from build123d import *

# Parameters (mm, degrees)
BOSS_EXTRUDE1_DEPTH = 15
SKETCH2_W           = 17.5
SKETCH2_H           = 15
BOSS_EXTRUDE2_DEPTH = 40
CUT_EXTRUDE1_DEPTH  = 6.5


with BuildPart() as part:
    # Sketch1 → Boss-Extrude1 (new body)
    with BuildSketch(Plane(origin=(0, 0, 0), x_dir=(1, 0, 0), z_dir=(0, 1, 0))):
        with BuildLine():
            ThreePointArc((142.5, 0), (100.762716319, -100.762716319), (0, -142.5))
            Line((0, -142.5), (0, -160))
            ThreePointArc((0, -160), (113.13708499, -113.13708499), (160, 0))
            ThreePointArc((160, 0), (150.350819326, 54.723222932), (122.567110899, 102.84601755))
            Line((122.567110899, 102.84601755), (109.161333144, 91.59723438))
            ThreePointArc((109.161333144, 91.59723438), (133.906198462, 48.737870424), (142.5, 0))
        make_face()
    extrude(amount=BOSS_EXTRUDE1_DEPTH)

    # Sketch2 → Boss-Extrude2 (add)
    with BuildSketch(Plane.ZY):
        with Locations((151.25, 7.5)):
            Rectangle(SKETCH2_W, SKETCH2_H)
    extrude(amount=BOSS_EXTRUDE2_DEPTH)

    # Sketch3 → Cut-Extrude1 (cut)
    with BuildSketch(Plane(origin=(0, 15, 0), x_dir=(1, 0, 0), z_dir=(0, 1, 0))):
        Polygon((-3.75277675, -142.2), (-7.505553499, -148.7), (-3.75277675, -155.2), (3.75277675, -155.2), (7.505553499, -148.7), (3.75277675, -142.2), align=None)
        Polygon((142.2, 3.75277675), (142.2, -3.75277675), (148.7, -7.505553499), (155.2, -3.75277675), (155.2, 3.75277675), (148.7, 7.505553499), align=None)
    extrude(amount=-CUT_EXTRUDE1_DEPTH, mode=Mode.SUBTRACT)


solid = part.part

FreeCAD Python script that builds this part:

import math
import FreeCAD as App
import Part
import Sketcher

V = App.Vector
Q = App.Units.Quantity

doc = App.newDocument("Part")
params = doc.addObject("Spreadsheet::Sheet", "Params")
for row, (alias, value) in enumerate([
    ("sketch1_radius", "160 mm"),
    ("sketch1_radius2", "142.5 mm"),
    ("pad1_length", "15 mm"),
    ("sketch2_width", "15 mm"),
    ("sketch2_height", "17.5 mm"),
    ("pad2_length", "40 mm"),
    ("pocket1_length", "6.5 mm"),
], start=1):
    params.set(f"A{row}", alias)
    params.set(f"B{row}", "=" + value)
    params.setAlias(f"B{row}", alias)

body = doc.addObject("PartDesign::Body", "Body")

sketch1 = body.newObject("Sketcher::SketchObject", "Sketch")
sketch1.AttachmentSupport = (doc.getObject("XZ_Plane"), [""])
sketch1.MapMode = "FlatFace"
sketch1.addGeometry([
    Part.ArcOfCircle(Part.Circle(V(0, 0, 0), V(0, 0, 1), 142.5), math.radians(0), math.radians(90)),
    Part.LineSegment(V(0, 142.5, 0), V(0, 160, 0)),
    Part.ArcOfCircle(Part.Circle(V(0, 0, 0), V(0, 0, 1), 160), math.radians(0), math.radians(90)),
    Part.ArcOfCircle(Part.Circle(V(0, 0, 0), V(0, 0, 1), 160), math.radians(-40), math.radians(0)),
    Part.LineSegment(V(122.567111, -102.846018, 0), V(109.161333, -91.597234, 0)),
    Part.ArcOfCircle(Part.Circle(V(0, 0, 0), V(0, 0, 1), 142.5), math.radians(-40), math.radians(0)),
], False)
sketch1.addConstraint([
    Sketcher.Constraint("Coincident", 0, 2, 1, 1),
    Sketcher.Constraint("Coincident", 1, 2, 2, 2),
    Sketcher.Constraint("Tangent", 2, 1, 3, 2),
    Sketcher.Constraint("Coincident", 3, 1, 4, 1),
    Sketcher.Constraint("Coincident", 4, 2, 5, 1),
    Sketcher.Constraint("Tangent", 5, 2, 0, 1),
    Sketcher.Constraint("Vertical", 1),
    Sketcher.Constraint("Coincident", 0, 3, -1, 1),
    Sketcher.Constraint("Coincident", 2, 3, -1, 1),
    Sketcher.Constraint("Equal", 2, 3),
    Sketcher.Constraint("Equal", 0, 5),
    Sketcher.Constraint("PointOnObject", 0, 2, -2),
    Sketcher.Constraint("PointOnObject", 2, 1, -1),
    Sketcher.Constraint("PointOnObject", 5, 2, -1),
    Sketcher.Constraint("Radius", 2, 160.0),
    Sketcher.Constraint("Radius", 0, 142.5),
    Sketcher.Constraint("Angle", 4, Q("140 deg")),
    Sketcher.Constraint("DistanceX", -1, 1, 3, 1, 122.567111),
])
sketch1.setExpression("Constraints[14]", "Params.sketch1_radius")
sketch1.setExpression("Constraints[15]", "Params.sketch1_radius2")
pad1 = body.newObject("PartDesign::Pad", "Pad")
pad1.Profile = sketch1
pad1.setExpression("Length", "Params.pad1_length")
pad1.Reversed = True

sketch2 = body.newObject("Sketcher::SketchObject", "Sketch001")
sketch2.AttachmentSupport = (doc.getObject("YZ_Plane"), [""])
sketch2.MapMode = "FlatFace"
sketch2.addGeometry([
    Part.LineSegment(V(15, 142.5, 0), V(0, 142.5, 0)),
    Part.LineSegment(V(0, 142.5, 0), V(0, 160, 0)),
    Part.LineSegment(V(0, 160, 0), V(15, 160, 0)),
    Part.LineSegment(V(15, 160, 0), V(15, 142.5, 0)),
], False)
sketch2.addConstraint([
    Sketcher.Constraint("Coincident", 0, 2, 1, 1),
    Sketcher.Constraint("Coincident", 1, 2, 2, 1),
    Sketcher.Constraint("Coincident", 2, 2, 3, 1),
    Sketcher.Constraint("Coincident", 3, 2, 0, 1),
    Sketcher.Constraint("Horizontal", 0),
    Sketcher.Constraint("Vertical", 1),
    Sketcher.Constraint("Horizontal", 2),
    Sketcher.Constraint("Vertical", 3),
    Sketcher.Constraint("PointOnObject", 0, 2, -2),
    Sketcher.Constraint("DistanceX", 0, 2, 0, 1, 15.0),
    Sketcher.Constraint("DistanceY", 1, 1, 1, 2, 17.5),
    Sketcher.Constraint("DistanceY", -1, 1, 1, 2, 160.0),
])
sketch2.setExpression("Constraints[9]", "Params.sketch2_width")
sketch2.setExpression("Constraints[10]", "Params.sketch2_height")
pad2 = body.newObject("PartDesign::Pad", "Pad001")
pad2.Profile = sketch2
pad2.setExpression("Length", "Params.pad2_length")
pad2.Reversed = True

sketch3 = body.newObject("Sketcher::SketchObject", "Sketch002")
sketch3.AttachmentSupport = (doc.getObject("XZ_Plane"), [""])
sketch3.MapMode = "FlatFace"
sketch3.AttachmentOffset = App.Placement(V(0, 0, -15), App.Rotation())
sketch3.addGeometry([
    Part.LineSegment(V(-3.752777, 142.2, 0), V(-7.505553, 148.7, 0)),
    Part.LineSegment(V(-7.505553, 148.7, 0), V(-3.752777, 155.2, 0)),
    Part.LineSegment(V(-3.752777, 155.2, 0), V(3.752777, 155.2, 0)),
    Part.LineSegment(V(3.752777, 155.2, 0), V(7.505553, 148.7, 0)),
    Part.LineSegment(V(7.505553, 148.7, 0), V(3.752777, 142.2, 0)),
    Part.LineSegment(V(3.752777, 142.2, 0), V(-3.752777, 142.2, 0)),
    Part.LineSegment(V(142.2, -3.752777, 0), V(142.2, 3.752777, 0)),
    Part.LineSegment(V(142.2, 3.752777, 0), V(148.7, 7.505553, 0)),
    Part.LineSegment(V(148.7, 7.505553, 0), V(155.2, 3.752777, 0)),
    Part.LineSegment(V(155.2, 3.752777, 0), V(155.2, -3.752777, 0)),
    Part.LineSegment(V(155.2, -3.752777, 0), V(148.7, -7.505553, 0)),
    Part.LineSegment(V(148.7, -7.505553, 0), V(142.2, -3.752777, 0)),
], False)
sketch3.addConstraint([
    Sketcher.Constraint("Coincident", 0, 2, 1, 1),
    Sketcher.Constraint("Coincident", 1, 2, 2, 1),
    Sketcher.Constraint("Coincident", 2, 2, 3, 1),
    Sketcher.Constraint("Coincident", 3, 2, 4, 1),
    Sketcher.Constraint("Coincident", 4, 2, 5, 1),
    Sketcher.Constraint("Coincident", 5, 2, 0, 1),
    Sketcher.Constraint("Coincident", 6, 2, 7, 1),
    Sketcher.Constraint("Coincident", 7, 2, 8, 1),
    Sketcher.Constraint("Coincident", 8, 2, 9, 1),
    Sketcher.Constraint("Coincident", 9, 2, 10, 1),
    Sketcher.Constraint("Coincident", 10, 2, 11, 1),
    Sketcher.Constraint("Coincident", 11, 2, 6, 1),
    Sketcher.Constraint("Horizontal", 2),
    Sketcher.Constraint("Horizontal", 5),
    Sketcher.Constraint("Vertical", 6),
    Sketcher.Constraint("Vertical", 9),
    Sketcher.Constraint("Symmetric", 0, 2, 3, 2, -2),
    Sketcher.Constraint("Symmetric", 7, 2, 10, 2, -1),
    Sketcher.Constraint("Parallel", 0, 3),
    Sketcher.Constraint("Parallel", 1, 4),
    Sketcher.Constraint("Perpendicular", 3, 7),
    Sketcher.Constraint("Perpendicular", 4, 8),
    Sketcher.Constraint("Parallel", 7, 10),
    Sketcher.Constraint("Parallel", 8, 11),
    Sketcher.Constraint("Horizontal", 6, 2, 8, 2),
    Sketcher.Constraint("Horizontal", 9, 2, 11, 2),
    Sketcher.Constraint("Vertical", 2, 2, 4, 2),
    Sketcher.Constraint("Equal", 5, 6),
    Sketcher.Constraint("Equal", 4, 7),
    Sketcher.Constraint("Angle", 0, Q("120 deg")),
    Sketcher.Constraint("DistanceY", 4, 2, 2, 2, 13.0),
    Sketcher.Constraint("DistanceY", -1, 1, 0, 2, 148.7),
    Sketcher.Constraint("DistanceX", -1, 1, 6, 2, 142.2),
    Sketcher.Constraint("DistanceX", 2, 1, 2, 2, 7.505554),
])
pocket1 = body.newObject("PartDesign::Pocket", "Pocket")
pocket1.Profile = sketch3
pocket1.setExpression("Length", "Params.pocket1_length")
pocket1.Reversed = True

doc.recompute()
